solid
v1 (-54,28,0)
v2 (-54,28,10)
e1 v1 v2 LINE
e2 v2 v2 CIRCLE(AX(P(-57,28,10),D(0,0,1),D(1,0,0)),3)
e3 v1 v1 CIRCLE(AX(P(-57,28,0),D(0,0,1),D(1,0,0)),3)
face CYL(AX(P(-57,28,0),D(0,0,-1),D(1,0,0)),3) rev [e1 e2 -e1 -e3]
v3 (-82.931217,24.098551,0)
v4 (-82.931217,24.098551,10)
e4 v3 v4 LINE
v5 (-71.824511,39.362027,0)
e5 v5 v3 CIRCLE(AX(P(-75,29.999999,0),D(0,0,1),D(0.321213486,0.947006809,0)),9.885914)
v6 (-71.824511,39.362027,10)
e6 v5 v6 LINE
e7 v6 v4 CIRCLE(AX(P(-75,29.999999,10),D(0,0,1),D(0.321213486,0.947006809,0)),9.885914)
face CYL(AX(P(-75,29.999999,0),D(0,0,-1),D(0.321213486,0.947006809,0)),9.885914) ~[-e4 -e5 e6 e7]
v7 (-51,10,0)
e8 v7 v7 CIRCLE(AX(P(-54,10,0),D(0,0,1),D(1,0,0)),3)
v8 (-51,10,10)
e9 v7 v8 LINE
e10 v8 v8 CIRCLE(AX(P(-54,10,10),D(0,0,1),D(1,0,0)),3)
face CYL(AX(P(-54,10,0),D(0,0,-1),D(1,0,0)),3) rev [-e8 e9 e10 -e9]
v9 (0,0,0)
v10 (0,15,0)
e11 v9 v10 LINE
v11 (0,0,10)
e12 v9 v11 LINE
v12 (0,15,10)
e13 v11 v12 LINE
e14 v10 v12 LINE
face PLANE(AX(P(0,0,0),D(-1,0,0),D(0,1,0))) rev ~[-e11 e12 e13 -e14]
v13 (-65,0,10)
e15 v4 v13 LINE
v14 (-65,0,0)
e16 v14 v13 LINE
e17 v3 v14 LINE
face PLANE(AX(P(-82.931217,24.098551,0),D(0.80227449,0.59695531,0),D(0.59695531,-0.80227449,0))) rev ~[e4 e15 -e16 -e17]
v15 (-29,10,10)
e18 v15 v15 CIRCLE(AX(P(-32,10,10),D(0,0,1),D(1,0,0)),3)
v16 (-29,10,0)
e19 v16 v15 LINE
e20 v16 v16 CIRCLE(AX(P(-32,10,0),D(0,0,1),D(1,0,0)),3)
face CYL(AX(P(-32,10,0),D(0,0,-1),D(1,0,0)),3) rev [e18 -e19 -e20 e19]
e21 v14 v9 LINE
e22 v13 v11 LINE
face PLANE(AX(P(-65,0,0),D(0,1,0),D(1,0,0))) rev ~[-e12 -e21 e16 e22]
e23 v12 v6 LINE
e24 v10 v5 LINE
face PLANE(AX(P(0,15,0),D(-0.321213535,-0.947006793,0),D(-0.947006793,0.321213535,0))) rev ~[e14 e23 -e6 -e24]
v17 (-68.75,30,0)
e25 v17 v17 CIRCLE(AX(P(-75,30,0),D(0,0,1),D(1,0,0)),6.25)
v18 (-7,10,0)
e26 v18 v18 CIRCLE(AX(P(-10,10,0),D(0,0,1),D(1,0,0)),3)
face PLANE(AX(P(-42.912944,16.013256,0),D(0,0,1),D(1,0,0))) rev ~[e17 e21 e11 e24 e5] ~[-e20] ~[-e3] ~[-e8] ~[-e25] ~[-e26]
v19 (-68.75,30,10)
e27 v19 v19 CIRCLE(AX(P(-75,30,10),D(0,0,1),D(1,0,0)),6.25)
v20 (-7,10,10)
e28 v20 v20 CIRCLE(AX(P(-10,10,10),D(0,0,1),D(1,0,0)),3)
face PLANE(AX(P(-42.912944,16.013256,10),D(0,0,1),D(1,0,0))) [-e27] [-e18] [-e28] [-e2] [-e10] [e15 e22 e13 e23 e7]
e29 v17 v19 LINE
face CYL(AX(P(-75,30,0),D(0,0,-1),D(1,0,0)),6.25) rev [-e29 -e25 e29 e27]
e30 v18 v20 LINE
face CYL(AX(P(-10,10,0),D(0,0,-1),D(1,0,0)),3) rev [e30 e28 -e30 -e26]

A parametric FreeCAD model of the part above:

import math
import FreeCAD as App
import Part
import Sketcher

doc = App.newDocument("Part")
body = doc.addObject("PartDesign::Body", "Body")

sketch1 = body.newObject("Sketcher::SketchObject", "Sketch")
sketch1.AttachmentSupport = (doc.getObject("XY_Plane"), [""])
sketch1.MapMode = "FlatFace"
sketch1.addGeometry([
    Part.LineSegment(App.Vector(-65, 0, 0), App.Vector(0, 0, 0)),
    Part.LineSegment(App.Vector(0, 0, 0), App.Vector(0, 15, 0)),
    Part.LineSegment(App.Vector(0, 15, 0), App.Vector(-71.8, 39.4, 0)),
    Part.ArcOfCircle(Part.Circle(App.Vector(-75, 30, 0), App.Vector(0, 0, 1), 9.9), math.radians(71), math.radians(217)),
    Part.LineSegment(App.Vector(-82.9, 24.1, 0), App.Vector(-65, 0, 0)),
    Part.Circle(App.Vector(-54, 10, 0), App.Vector(0, 0, 1), 3),
    Part.Circle(App.Vector(-32, 10, 0), App.Vector(0, 0, 1), 3),
    Part.Circle(App.Vector(-10, 10, 0), App.Vector(0, 0, 1), 3),
    Part.Circle(App.Vector(-57, 28, 0), App.Vector(0, 0, 1), 3),
    Part.Circle(App.Vector(-75, 30, 0), App.Vector(0, 0, 1), 6.2),
], False)
sketch1.addConstraint([
    Sketcher.Constraint("Coincident", 0, 2, 1, 1),
    Sketcher.Constraint("Coincident", 1, 2, 2, 1),
    Sketcher.Constraint("Tangent", 2, 2, 3, 1),
    Sketcher.Constraint("Tangent", 3, 2, 4, 1),
    Sketcher.Constraint("Coincident", 4, 2, 0, 1),
    Sketcher.Constraint("Horizontal", 0),
    Sketcher.Constraint("Vertical", 1),
    Sketcher.Constraint("Coincident", 0, 2, -1, 1),
    Sketcher.Constraint("Coincident", 9, 3, 3, 3),
    Sketcher.Constraint("Equal", 5, 6),
    Sketcher.Constraint("Equal", 6, 7),
    Sketcher.Constraint("Equal", 7, 8),
    Sketcher.Constraint("Horizontal", 5, 3, 6, 3),
    Sketcher.Constraint("Horizontal", 6, 3, 7, 3),
    Sketcher.Constraint("Diameter", 5, 6.0),
    Sketcher.Constraint("Diameter", 9, 12.5),
    Sketcher.Constraint("DistanceX", 0, 1, 0, 2, 65.0),
    Sketcher.Constraint("DistanceY", 1, 1, 1, 2, 15.0),
    Sketcher.Constraint("DistanceX", 3, 3, -1, 1, 75.0),
    Sketcher.Constraint("DistanceY", -1, 1, 3, 3, 29.999999),
    Sketcher.Constraint("DistanceX", 5, 3, -1, 1, 54.0),
    Sketcher.Constraint("DistanceY", -1, 1, 5, 3, 10.0),
    Sketcher.Constraint("DistanceX", 6, 3, -1, 1, 32.0),
    Sketcher.Constraint("DistanceX", 7, 3, -1, 1, 10.0),
    Sketcher.Constraint("DistanceX", 8, 3, -1, 1, 57.0),
    Sketcher.Constraint("DistanceY", -1, 1, 8, 3, 28.0),
    Sketcher.Constraint("Radius", 3, 9.885914),
])
pad1 = body.newObject("PartDesign::Pad", "Pad")
pad1.Profile = sketch1
pad1.Length = 10

doc.recompute()
